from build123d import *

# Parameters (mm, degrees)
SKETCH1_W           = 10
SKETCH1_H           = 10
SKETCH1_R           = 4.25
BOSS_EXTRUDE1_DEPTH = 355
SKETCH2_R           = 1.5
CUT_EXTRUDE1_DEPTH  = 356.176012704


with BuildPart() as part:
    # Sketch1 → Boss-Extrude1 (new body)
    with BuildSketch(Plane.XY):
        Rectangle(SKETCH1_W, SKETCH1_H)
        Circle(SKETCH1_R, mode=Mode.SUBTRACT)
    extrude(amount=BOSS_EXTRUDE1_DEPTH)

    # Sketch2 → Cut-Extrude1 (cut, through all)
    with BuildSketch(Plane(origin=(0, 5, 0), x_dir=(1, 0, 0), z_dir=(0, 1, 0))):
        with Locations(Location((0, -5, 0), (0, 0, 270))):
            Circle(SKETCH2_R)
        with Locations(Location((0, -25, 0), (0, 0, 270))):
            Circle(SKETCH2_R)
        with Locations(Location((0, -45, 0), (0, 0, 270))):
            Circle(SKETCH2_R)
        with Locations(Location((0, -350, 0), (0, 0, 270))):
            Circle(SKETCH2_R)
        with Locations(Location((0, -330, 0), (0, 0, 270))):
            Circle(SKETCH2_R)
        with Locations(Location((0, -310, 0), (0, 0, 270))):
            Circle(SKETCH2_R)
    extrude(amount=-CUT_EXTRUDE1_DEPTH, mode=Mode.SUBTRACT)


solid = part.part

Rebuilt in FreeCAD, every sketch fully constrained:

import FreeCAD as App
import Part
import Sketcher


def add_polygon(sketch, points):
    """Adds a closed chain of lines whose ends are joined by coincident constraints."""
    first, n = sketch.GeometryCount, len(points)
    for a, b in zip(points, points[1:] + points[:1]):
        sketch.addGeometry(Part.LineSegment(App.Vector(*a, 0), App.Vector(*b, 0)), False)
    for i in range(n):
        sketch.addConstraint(Sketcher.Constraint("Coincident", first + i, 2, first + (i + 1) % n, 1))

doc = App.newDocument("Part")
body = doc.addObject("PartDesign::Body", "Body")

# Sketch on XY plane
sketch1 = body.newObject("Sketcher::SketchObject", "Sketch")
sketch1.AttachmentSupport = (doc.getObject("XY_Plane"), [""])
sketch1.MapMode = "FlatFace"
add_polygon(sketch1, [(-5, 5), (-5, -5), (5, -5), (5, 5)])  # lines 0-3
sketch1.addGeometry(Part.Circle(App.Vector(0, 0, 0), App.Vector(0, 0, 1), 4.25), False)  # 4
sketch1.addConstraint([
    Sketcher.Constraint("Vertical", 0),
    Sketcher.Constraint("Horizontal", 1),
    Sketcher.Constraint("Vertical", 2),
    Sketcher.Constraint("Horizontal", 3),
    Sketcher.Constraint("Coincident", 4, 3, -1, 1),
    Sketcher.Constraint("Symmetric", 0, 2, 2, 2, -1, 1),
    Sketcher.Constraint("Equal", 3, 0),
    Sketcher.Constraint("Diameter", 4, 8.5),
    Sketcher.Constraint("DistanceX", 1, 1, 1, 2, 10.0),
])
pad1 = body.newObject("PartDesign::Pad", "Pad")
pad1.Profile = sketch1
pad1.Length = 355

# Sketch on XZ plane
sketch2 = body.newObject("Sketcher::SketchObject", "Sketch001")
sketch2.AttachmentSupport = (doc.getObject("XZ_Plane"), [""])
sketch2.MapMode = "FlatFace"
sketch2.AttachmentOffset = App.Placement(App.Vector(0, 0, -5), App.Rotation())
sketch2.addGeometry([
    Part.Circle(App.Vector(0, 5, 0), App.Vector(0, 0, 1), 1.5),  # 0
    Part.Circle(App.Vector(0, 25, 0), App.Vector(0, 0, 1), 1.5),  # 1
    Part.Circle(App.Vector(0, 45, 0), App.Vector(0, 0, 1), 1.5),  # 2
    Part.Circle(App.Vector(0, 350, 0), App.Vector(0, 0, 1), 1.5),  # 3
    Part.Circle(App.Vector(0, 330, 0), App.Vector(0, 0, 1), 1.5),  # 4
    Part.Circle(App.Vector(0, 310, 0), App.Vector(0, 0, 1), 1.5),  # 5
], False)
sketch2.addConstraint([
    Sketcher.Constraint("Equal", 0, 1),
    Sketcher.Constraint("Equal", 1, 2),
    Sketcher.Constraint("Equal", 2, 3),
    Sketcher.Constraint("Equal", 3, 4),
    Sketcher.Constraint("Equal", 4, 5),
    Sketcher.Constraint("PointOnObject", 0, 3, -2),
    Sketcher.Constraint("PointOnObject", 1, 3, -2),
    Sketcher.Constraint("PointOnObject", 2, 3, -2),
    Sketcher.Constraint("PointOnObject", 3, 3, -2),
    Sketcher.Constraint("PointOnObject", 4, 3, -2),
    Sketcher.Constraint("PointOnObject", 5, 3, -2),
    Sketcher.Constraint("Diameter", 0, 3.0),
    Sketcher.Constraint("DistanceY", -1, 1, 0, 3, 5.0),
    Sketcher.Constraint("DistanceY", -1, 1, 1, 3, 25.0),
    Sketcher.Constraint("DistanceY", -1, 1, 2, 3, 45.0),
    Sketcher.Constraint("DistanceY", -1, 1, 3, 3, 350.0),
    Sketcher.Constraint("DistanceY", -1, 1, 4, 3, 330.0),
    Sketcher.Constraint("DistanceY", -1, 1, 5, 3, 310.0),
])
pocket1 = body.newObject("PartDesign::Pocket", "Pocket")
pocket1.Profile = sketch2
pocket1.Type = "ThroughAll"
pocket1.Reversed = True

doc.recompute()
